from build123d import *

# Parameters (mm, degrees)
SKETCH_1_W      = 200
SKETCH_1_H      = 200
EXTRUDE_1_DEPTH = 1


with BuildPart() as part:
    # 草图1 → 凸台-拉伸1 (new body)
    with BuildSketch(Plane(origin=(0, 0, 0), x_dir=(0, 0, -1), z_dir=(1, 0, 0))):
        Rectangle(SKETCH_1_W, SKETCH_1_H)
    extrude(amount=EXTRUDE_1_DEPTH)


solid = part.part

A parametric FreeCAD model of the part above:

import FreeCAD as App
import Part
import Sketcher
from FreeCAD import Vector


def add_polygon(sketch, points):
    """Adds a closed chain of lines whose ends are joined by coincident constraints."""
    first, n = sketch.GeometryCount, len(points)
    for a, b in zip(points, points[1:] + points[:1]):
        sketch.addGeometry(Part.LineSegment(App.Vector(*a, 0), App.Vector(*b, 0)), False)
    for i in range(n):
        sketch.addConstraint(Sketcher.Constraint("Coincident", first + i, 2, first + (i + 1) % n, 1))

doc = App.newDocument("Part")
body = doc.addObject("PartDesign::Body", "Body")

# Sketch on YZ plane
sketch1 = doc.addObject("Sketcher::SketchObject", "Sketch")
body.addObject(sketch1)
sketch1.AttachmentSupport = (doc.YZ_Plane, [""])
sketch1.MapMode = "FlatFace"
add_polygon(sketch1, [(100, 100), (-100, 100), (-100, -100), (100, -100)])  # lines 0-3
sketch1.addConstraint(Sketcher.Constraint("Horizontal", 0))
sketch1.addConstraint(Sketcher.Constraint("Vertical", 1))
sketch1.addConstraint(Sketcher.Constraint("Horizontal", 2))
sketch1.addConstraint(Sketcher.Constraint("Vertical", 3))
sketch1.addConstraint(Sketcher.Constraint("Symmetric", 0, 2, 2, 2, -1, 1))
sketch1.addConstraint(Sketcher.Constraint("Equal", 2, 1))
sketch1.addConstraint(Sketcher.Constraint("DistanceX", 0, 2, 0, 1, 200.0))
pad1 = doc.addObject("PartDesign::Pad", "Pad")
body.addObject(pad1)
pad1.Profile = sketch1
pad1.Length = 1

doc.recompute()
